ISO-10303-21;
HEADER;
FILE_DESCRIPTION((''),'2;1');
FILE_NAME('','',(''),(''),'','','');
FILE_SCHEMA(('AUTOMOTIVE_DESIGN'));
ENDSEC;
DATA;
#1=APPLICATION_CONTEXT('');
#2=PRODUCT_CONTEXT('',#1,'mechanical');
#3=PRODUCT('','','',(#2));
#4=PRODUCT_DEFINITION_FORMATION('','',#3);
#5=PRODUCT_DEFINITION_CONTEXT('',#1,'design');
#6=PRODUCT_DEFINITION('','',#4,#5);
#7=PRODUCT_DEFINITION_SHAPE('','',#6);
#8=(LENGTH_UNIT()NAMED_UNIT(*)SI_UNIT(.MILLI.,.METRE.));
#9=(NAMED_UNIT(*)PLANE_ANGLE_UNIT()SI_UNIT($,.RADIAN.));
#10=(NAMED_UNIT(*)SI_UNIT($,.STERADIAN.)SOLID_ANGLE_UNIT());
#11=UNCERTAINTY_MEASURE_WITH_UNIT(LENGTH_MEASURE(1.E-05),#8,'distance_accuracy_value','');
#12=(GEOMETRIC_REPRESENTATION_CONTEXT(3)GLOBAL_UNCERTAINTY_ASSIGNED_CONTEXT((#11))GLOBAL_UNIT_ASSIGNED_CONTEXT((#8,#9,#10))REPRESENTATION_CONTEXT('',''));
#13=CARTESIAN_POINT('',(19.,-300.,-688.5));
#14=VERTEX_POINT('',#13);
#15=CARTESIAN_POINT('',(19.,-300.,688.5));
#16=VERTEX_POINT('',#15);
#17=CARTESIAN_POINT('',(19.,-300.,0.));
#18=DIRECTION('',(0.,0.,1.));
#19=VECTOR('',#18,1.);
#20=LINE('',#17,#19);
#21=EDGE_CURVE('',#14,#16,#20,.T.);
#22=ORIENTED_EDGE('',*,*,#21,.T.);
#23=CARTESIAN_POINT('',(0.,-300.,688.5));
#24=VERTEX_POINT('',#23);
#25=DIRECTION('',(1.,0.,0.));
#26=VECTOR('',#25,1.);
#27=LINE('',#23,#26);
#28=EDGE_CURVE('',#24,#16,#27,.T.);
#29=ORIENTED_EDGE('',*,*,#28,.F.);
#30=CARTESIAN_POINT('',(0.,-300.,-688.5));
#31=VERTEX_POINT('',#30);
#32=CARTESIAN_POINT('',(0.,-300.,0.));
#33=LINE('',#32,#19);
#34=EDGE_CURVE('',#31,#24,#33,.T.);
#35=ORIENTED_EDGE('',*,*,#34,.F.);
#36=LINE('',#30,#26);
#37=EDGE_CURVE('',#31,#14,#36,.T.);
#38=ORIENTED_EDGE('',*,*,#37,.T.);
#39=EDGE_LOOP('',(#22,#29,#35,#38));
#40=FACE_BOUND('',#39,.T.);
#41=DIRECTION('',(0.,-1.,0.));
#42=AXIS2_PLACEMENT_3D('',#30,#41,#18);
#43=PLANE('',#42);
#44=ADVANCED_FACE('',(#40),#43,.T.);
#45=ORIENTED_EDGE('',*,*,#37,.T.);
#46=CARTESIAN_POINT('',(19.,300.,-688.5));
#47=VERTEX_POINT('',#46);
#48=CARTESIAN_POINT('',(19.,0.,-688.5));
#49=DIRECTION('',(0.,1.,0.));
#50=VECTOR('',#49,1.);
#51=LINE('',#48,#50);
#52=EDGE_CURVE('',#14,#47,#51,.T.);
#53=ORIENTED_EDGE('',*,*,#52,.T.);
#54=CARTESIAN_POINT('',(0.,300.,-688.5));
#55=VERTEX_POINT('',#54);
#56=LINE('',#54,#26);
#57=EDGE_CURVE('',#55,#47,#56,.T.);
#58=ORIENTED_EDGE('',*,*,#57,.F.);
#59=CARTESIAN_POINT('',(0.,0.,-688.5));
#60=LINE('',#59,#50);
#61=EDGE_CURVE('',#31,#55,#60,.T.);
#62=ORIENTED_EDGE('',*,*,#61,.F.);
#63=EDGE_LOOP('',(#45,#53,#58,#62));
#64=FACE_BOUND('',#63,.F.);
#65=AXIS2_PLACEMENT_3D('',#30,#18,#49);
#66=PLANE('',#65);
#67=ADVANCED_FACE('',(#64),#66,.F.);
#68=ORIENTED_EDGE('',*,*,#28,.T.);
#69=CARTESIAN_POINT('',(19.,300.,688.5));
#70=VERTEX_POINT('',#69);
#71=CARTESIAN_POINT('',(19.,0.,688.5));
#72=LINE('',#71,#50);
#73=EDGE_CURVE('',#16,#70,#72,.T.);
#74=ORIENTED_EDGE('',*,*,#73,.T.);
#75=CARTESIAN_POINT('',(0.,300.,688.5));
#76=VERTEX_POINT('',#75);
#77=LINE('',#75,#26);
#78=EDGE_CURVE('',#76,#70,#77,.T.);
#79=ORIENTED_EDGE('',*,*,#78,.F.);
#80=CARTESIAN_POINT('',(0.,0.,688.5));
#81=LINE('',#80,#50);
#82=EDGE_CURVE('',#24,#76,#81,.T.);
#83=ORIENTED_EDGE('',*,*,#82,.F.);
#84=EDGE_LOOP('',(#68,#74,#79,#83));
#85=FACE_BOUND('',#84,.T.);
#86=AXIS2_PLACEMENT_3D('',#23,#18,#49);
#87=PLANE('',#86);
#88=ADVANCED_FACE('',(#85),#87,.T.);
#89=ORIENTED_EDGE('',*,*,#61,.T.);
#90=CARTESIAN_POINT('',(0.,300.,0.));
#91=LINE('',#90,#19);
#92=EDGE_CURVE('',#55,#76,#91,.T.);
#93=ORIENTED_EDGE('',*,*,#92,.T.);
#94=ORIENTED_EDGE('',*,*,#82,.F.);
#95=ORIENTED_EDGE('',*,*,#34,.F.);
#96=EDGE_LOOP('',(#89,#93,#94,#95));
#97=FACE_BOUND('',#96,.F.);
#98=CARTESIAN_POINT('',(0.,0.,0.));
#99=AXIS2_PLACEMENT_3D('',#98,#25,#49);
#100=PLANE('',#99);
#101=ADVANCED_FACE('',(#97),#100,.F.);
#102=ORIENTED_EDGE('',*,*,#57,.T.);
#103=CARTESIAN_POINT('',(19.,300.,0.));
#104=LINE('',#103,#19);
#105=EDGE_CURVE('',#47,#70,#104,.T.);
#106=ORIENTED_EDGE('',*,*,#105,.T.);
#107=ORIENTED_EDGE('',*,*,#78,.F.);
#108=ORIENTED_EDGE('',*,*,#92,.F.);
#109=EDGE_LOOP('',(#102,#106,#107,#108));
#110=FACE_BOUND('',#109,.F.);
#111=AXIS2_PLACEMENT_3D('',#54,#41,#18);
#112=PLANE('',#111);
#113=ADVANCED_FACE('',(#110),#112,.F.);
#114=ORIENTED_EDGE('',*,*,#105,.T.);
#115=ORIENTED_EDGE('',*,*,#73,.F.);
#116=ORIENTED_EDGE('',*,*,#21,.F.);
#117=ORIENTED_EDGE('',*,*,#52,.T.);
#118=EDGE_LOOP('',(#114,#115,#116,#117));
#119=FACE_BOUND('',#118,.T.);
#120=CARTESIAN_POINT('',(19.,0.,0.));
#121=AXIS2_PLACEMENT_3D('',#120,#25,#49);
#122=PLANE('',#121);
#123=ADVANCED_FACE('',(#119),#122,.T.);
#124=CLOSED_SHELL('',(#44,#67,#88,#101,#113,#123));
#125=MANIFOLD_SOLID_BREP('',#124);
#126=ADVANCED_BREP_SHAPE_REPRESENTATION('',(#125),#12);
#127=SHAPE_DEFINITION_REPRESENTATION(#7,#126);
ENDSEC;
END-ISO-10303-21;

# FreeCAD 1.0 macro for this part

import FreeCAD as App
import Part
import Sketcher
from FreeCAD import Vector
Q = App.Units.Quantity

doc = App.newDocument("Part")
body = doc.addObject("PartDesign::Body", "Body")

sketch1 = body.newObject("Sketcher::SketchObject", "Sketch")
sketch1.AttachmentSupport = (doc.getObject("YZ_Plane"), [""])
sketch1.MapMode = "FlatFace"
sketch1.addGeometry([
    Part.LineSegment(Vector(-300, 688, 0), Vector(-300, -688, 0)),
    Part.LineSegment(Vector(-300, -688, 0), Vector(300, -688, 0)),
    Part.LineSegment(Vector(300, -688, 0), Vector(300, 688, 0)),
    Part.LineSegment(Vector(300, 688, 0), Vector(-300, 688, 0)),
], False)
sketch1.addConstraint([
    Sketcher.Constraint("Coincident", 0, 2, 1, 1),
    Sketcher.Constraint("Coincident", 1, 2, 2, 1),
    Sketcher.Constraint("Coincident", 2, 2, 3, 1),
    Sketcher.Constraint("Coincident", 3, 2, 0, 1),
    Sketcher.Constraint("Vertical", 0),
    Sketcher.Constraint("Horizontal", 1),
    Sketcher.Constraint("Vertical", 2),
    Sketcher.Constraint("Horizontal", 3),
    Sketcher.Constraint("Symmetric", 0, 2, 2, 2, -1, 1),
    Sketcher.Constraint("DistanceX", 1, 1, 1, 2, Q("600 mm")),
    Sketcher.Constraint("DistanceY", 0, 2, 0, 1, Q("1377 mm")),
])
pad1 = body.newObject("PartDesign::Pad", "Pad")
pad1.Profile = sketch1
pad1.Length = 19

doc.recompute()
